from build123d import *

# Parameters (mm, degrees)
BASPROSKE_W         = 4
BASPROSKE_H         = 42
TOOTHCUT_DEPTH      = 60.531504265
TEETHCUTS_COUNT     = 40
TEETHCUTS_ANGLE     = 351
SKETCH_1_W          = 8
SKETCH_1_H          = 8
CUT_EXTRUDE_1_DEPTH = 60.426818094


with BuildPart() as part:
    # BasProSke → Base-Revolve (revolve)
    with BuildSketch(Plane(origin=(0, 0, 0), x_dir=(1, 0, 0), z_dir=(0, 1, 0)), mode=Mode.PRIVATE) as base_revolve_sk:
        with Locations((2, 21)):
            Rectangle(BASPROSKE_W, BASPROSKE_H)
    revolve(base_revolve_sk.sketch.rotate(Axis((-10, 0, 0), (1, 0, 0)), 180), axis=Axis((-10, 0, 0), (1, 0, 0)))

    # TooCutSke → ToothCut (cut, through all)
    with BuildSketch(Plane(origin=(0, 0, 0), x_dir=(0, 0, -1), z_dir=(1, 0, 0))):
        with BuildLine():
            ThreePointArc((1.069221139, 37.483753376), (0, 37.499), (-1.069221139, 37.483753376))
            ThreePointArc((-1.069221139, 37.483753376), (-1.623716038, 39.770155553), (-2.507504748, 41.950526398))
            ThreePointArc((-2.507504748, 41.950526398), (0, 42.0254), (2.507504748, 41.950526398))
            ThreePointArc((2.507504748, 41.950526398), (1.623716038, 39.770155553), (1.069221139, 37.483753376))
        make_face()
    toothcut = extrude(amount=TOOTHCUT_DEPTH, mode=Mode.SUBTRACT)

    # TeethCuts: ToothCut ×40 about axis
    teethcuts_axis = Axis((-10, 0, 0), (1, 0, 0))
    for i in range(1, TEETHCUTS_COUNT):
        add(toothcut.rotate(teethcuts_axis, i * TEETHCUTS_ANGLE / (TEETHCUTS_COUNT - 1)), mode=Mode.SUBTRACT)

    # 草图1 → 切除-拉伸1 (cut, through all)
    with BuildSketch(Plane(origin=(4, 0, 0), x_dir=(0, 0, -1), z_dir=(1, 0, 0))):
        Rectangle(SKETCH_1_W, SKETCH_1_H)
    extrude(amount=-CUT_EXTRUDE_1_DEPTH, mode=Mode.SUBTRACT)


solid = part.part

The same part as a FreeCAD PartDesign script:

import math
import FreeCAD as App
import Part
import Sketcher
from FreeCAD import Vector
Q = App.Units.Quantity


def add_polygon(sketch, points):
    """Adds a closed chain of lines whose ends are joined by coincident constraints."""
    first, n = sketch.GeometryCount, len(points)
    for a, b in zip(points, points[1:] + points[:1]):
        sketch.addGeometry(Part.LineSegment(App.Vector(*a, 0), App.Vector(*b, 0)), False)
    for i in range(n):
        sketch.addConstraint(Sketcher.Constraint("Coincident", first + i, 2, first + (i + 1) % n, 1))

doc = App.newDocument("Part")
params = doc.addObject("Spreadsheet::Sheet", "Params")
for row, (alias, value) in enumerate([
    ("sketch1_width", "4 mm"),
    ("sketch1_height", "42 mm"),
    ("revolution_angle", "360 deg"),
    ("sketch2_radius", "16 mm"),
    ("sketch3_width", "8 mm"),
], start=1):
    params.set(f"A{row}", alias)
    params.set(f"B{row}", "=" + value)
    params.setAlias(f"B{row}", alias)

body = doc.addObject("PartDesign::Body", "Body")

sketch1 = body.newObject("Sketcher::SketchObject", "Sketch")
sketch1.AttachmentSupport = (doc.getObject("XZ_Plane"), [""])
sketch1.MapMode = "FlatFace"
add_polygon(sketch1, [(0, -42), (0, 0), (4, 0), (4, -42)])
sketch1.addConstraint([
    Sketcher.Constraint("Vertical", 0),
    Sketcher.Constraint("Horizontal", 1),
    Sketcher.Constraint("Vertical", 2),
    Sketcher.Constraint("Horizontal", 3),
    Sketcher.Constraint("Coincident", 0, 2, -1, 1),
    Sketcher.Constraint("DistanceX", 1, 1, 1, 2, Q("4 mm")),
    Sketcher.Constraint("DistanceY", 0, 1, 0, 2, Q("42 mm")),
])
sketch1.setExpression("Constraints[9]", "Params.sketch1_width")
sketch1.setExpression("Constraints[10]", "Params.sketch1_height")
revolution = body.newObject("PartDesign::Revolution", "Revolution")
revolution.Profile = sketch1
revolution.ReferenceAxis = (sketch1, ["H_Axis"])
revolution.setExpression("Angle", "Params.revolution_angle")

sketch2 = body.newObject("Sketcher::SketchObject", "Sketch001")
sketch2.AttachmentSupport = (doc.getObject("YZ_Plane"), [""])
sketch2.MapMode = "FlatFace"
sketch2.addGeometry([
    Part.ArcOfCircle(Part.Circle(Vector(0, 0, 0), Vector(0, 0, 1), 37.499), math.radians(-1.633915), math.radians(1.633915)),
    Part.ArcOfCircle(Part.Circle(Vector(34.866175, -16.853653, 0), Vector(0, 0, 1), 16), math.radians(63.719122), math.radians(80.584163)),
    Part.ArcOfCircle(Part.Circle(Vector(0, 0, 0), Vector(0, 0, 1), 42.0254), math.radians(-3.420665), math.radians(3.420665)),
    Part.ArcOfCircle(Part.Circle(Vector(34.866175, 16.853653, 0), Vector(0, 0, 1), 16), math.radians(-80.584163), math.radians(-63.719122)),
], False)
sketch2.addConstraint([
    Sketcher.Constraint("Coincident", 0, 1, 1, 2),
    Sketcher.Constraint("Coincident", 1, 1, 2, 1),
    Sketcher.Constraint("Coincident", 2, 2, 3, 2),
    Sketcher.Constraint("Coincident", 3, 1, 0, 2),
    Sketcher.Constraint("Coincident", 0, 3, -1, 1),
    Sketcher.Constraint("Coincident", 2, 3, -1, 1),
    Sketcher.Constraint("Equal", 1, 3),
    Sketcher.Constraint("Symmetric", 1, 3, 3, 3, -1),
    Sketcher.Constraint("Radius", 1, Q("16 mm")),
    Sketcher.Constraint("Radius", 0, Q("37.499 mm")),
    Sketcher.Constraint("Radius", 2, Q("42.0254 mm")),
    Sketcher.Constraint("DistanceY", 0, 1, -1, 1, Q("1.069221 mm")),
    Sketcher.Constraint("DistanceX", 1, 3, 0, 1, Q("2.617578 mm")),
])
sketch2.setExpression("Constraints[8]", "Params.sketch2_radius")
pocket1 = body.newObject("PartDesign::Pocket", "Pocket")
pocket1.Profile = sketch2
pocket1.Type = "ThroughAll"
pocket1.Reversed = True
doc.recompute()

polarpattern = body.newObject("PartDesign::PolarPattern", "PolarPattern")
polarpattern.Originals = [pocket1]
polarpattern.Axis = (doc.getObject("X_Axis"), [""])
polarpattern.Angle = 360
polarpattern.Occurrences = 40
body.Tip = polarpattern

sketch3 = body.newObject("Sketcher::SketchObject", "Sketch002")
sketch3.AttachmentSupport = (doc.getObject("YZ_Plane"), [""])
sketch3.MapMode = "FlatFace"
sketch3.AttachmentOffset = App.Placement(Vector(0, 0, 4), App.Rotation())
add_polygon(sketch3, [(4, 4), (-4, 4), (-4, -4), (4, -4)])
sketch3.addConstraint([
    Sketcher.Constraint("Horizontal", 0),
    Sketcher.Constraint("Vertical", 1),
    Sketcher.Constraint("Horizontal", 2),
    Sketcher.Constraint("Vertical", 3),
    Sketcher.Constraint("Symmetric", 0, 2, 2, 2, -1, 1),
    Sketcher.Constraint("Equal", 2, 1),
    Sketcher.Constraint("DistanceX", 0, 2, 0, 1, Q("8 mm")),
])
sketch3.setExpression("Constraints[10]", "Params.sketch3_width")
pocket2 = body.newObject("PartDesign::Pocket", "Pocket001")
pocket2.Profile = sketch3
pocket2.Type = "ThroughAll"

doc.recompute()
